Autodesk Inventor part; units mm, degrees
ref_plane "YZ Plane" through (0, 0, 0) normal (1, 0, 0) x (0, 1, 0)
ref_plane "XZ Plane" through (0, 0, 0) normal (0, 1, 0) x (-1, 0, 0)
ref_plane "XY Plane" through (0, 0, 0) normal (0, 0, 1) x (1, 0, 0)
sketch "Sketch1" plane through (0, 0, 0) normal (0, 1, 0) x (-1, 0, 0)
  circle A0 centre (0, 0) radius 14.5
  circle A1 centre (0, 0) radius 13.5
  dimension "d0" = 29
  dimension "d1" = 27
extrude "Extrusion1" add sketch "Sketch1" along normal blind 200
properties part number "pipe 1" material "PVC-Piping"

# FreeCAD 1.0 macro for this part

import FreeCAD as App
import Part
import Sketcher

V = App.Vector
Q = App.Units.Quantity

doc = App.newDocument("Part")
params = doc.addObject("Spreadsheet::Sheet", "Params")
for row, (alias, value) in enumerate([
    ("sketch1_diameter", "29 mm"),
    ("sketch1_diameter2", "27 mm"),
    ("pad1_length", "200 mm"),
], start=1):
    params.set(f"A{row}", alias)
    params.set(f"B{row}", "=" + value)
    params.setAlias(f"B{row}", alias)

body = doc.addObject("PartDesign::Body", "Body")

# Sketch on XZ plane
sketch1 = body.newObject("Sketcher::SketchObject", "Sketch")
sketch1.AttachmentSupport = (doc.getObject("XZ_Plane"), [""])
sketch1.MapMode = "FlatFace"
sketch1.addGeometry(Part.Circle(V(0, 0, 0), V(0, 0, 1), 14.5), False)
sketch1.addGeometry(Part.Circle(V(0, 0, 0), V(0, 0, 1), 13.5), False)
sketch1.addConstraint(Sketcher.Constraint("Coincident", 0, 3, -1, 1))
sketch1.addConstraint(Sketcher.Constraint("Coincident", 1, 3, -1, 1))
sketch1.addConstraint(Sketcher.Constraint("Diameter", 0, Q("29 mm")))
sketch1.addConstraint(Sketcher.Constraint("Diameter", 1, Q("27 mm")))
sketch1.setExpression("Constraints[2]", "Params.sketch1_diameter")
sketch1.setExpression("Constraints[3]", "Params.sketch1_diameter2")
pad1 = body.newObject("PartDesign::Pad", "Pad")
pad1.Profile = sketch1
pad1.setExpression("Length", "Params.pad1_length")
pad1.Reversed = True

doc.recompute()
